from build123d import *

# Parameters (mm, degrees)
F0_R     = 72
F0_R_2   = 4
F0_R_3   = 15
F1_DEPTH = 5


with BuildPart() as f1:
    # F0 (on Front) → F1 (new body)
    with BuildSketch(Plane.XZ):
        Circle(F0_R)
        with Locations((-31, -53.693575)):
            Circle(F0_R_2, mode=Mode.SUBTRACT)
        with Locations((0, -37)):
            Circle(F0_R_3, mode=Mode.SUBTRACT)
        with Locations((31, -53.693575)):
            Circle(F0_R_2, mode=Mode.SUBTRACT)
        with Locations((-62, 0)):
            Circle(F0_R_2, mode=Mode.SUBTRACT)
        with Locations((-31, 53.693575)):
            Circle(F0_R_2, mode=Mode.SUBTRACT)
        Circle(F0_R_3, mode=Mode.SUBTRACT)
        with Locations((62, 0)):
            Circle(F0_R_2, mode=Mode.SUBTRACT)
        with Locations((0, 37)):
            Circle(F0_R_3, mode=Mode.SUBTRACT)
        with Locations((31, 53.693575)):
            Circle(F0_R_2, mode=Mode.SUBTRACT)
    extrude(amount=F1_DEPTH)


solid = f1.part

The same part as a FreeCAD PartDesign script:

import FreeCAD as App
import Part
import Sketcher

V = App.Vector

doc = App.newDocument("Part")
body = doc.addObject("PartDesign::Body", "Body")

sketch1 = body.newObject("Sketcher::SketchObject", "Sketch")
sketch1.AttachmentSupport = (doc.getObject("XZ_Plane"), [""])
sketch1.MapMode = "FlatFace"
sketch1.addGeometry([
    Part.Circle(V(0, 0, 0), V(0, 0, 1), 72),
    Part.Circle(V(-31, -53.7, 0), V(0, 0, 1), 4),
    Part.Circle(V(31, -53.7, 0), V(0, 0, 1), 4),
    Part.Circle(V(0, -37, 0), V(0, 0, 1), 15),
    Part.Circle(V(-62, 0, 0), V(0, 0, 1), 4),
    Part.Circle(V(-31, 53.7, 0), V(0, 0, 1), 4),
    Part.Circle(V(0, 0, 0), V(0, 0, 1), 15),
    Part.Circle(V(62, 0, 0), V(0, 0, 1), 4),
    Part.Circle(V(0, 37, 0), V(0, 0, 1), 15),
    Part.Circle(V(31, 53.7, 0), V(0, 0, 1), 4),
], False)
sketch1.addConstraint([
    Sketcher.Constraint("Coincident", 0, 3, -1, 1),
    Sketcher.Constraint("Coincident", 6, 3, -1, 1),
    Sketcher.Constraint("Equal", 1, 2),
    Sketcher.Constraint("Equal", 2, 4),
    Sketcher.Constraint("Equal", 4, 5),
    Sketcher.Constraint("Equal", 3, 6),
    Sketcher.Constraint("Equal", 5, 7),
    Sketcher.Constraint("Equal", 6, 8),
    Sketcher.Constraint("Equal", 7, 9),
    Sketcher.Constraint("Symmetric", 2, 3, 5, 3, -1, 1),
    Sketcher.Constraint("Symmetric", 4, 3, 7, 3, -1, 1),
    Sketcher.Constraint("Symmetric", 3, 3, 8, 3, -1, 1),
    Sketcher.Constraint("Symmetric", 1, 3, 9, 3, -1, 1),
    Sketcher.Constraint("Symmetric", 1, 3, 2, 3, -2),
    Sketcher.Constraint("PointOnObject", 3, 3, -2),
    Sketcher.Constraint("PointOnObject", 4, 3, -1),
    Sketcher.Constraint("Diameter", 0, 144.0),
    Sketcher.Constraint("Diameter", 1, 8.0),
    Sketcher.Constraint("Diameter", 3, 30.0),
    Sketcher.Constraint("DistanceX", 1, 3, -1, 1, 31.0),
    Sketcher.Constraint("DistanceY", 3, 3, -1, 1, 37.0),
    Sketcher.Constraint("DistanceX", 4, 3, -1, 1, 62.0),
    Sketcher.Constraint("DistanceY", 1, 3, 5, 3, 107.38715),
])
pad1 = body.newObject("PartDesign::Pad", "Pad")
pad1.Profile = sketch1
pad1.Length = 5

doc.recompute()
